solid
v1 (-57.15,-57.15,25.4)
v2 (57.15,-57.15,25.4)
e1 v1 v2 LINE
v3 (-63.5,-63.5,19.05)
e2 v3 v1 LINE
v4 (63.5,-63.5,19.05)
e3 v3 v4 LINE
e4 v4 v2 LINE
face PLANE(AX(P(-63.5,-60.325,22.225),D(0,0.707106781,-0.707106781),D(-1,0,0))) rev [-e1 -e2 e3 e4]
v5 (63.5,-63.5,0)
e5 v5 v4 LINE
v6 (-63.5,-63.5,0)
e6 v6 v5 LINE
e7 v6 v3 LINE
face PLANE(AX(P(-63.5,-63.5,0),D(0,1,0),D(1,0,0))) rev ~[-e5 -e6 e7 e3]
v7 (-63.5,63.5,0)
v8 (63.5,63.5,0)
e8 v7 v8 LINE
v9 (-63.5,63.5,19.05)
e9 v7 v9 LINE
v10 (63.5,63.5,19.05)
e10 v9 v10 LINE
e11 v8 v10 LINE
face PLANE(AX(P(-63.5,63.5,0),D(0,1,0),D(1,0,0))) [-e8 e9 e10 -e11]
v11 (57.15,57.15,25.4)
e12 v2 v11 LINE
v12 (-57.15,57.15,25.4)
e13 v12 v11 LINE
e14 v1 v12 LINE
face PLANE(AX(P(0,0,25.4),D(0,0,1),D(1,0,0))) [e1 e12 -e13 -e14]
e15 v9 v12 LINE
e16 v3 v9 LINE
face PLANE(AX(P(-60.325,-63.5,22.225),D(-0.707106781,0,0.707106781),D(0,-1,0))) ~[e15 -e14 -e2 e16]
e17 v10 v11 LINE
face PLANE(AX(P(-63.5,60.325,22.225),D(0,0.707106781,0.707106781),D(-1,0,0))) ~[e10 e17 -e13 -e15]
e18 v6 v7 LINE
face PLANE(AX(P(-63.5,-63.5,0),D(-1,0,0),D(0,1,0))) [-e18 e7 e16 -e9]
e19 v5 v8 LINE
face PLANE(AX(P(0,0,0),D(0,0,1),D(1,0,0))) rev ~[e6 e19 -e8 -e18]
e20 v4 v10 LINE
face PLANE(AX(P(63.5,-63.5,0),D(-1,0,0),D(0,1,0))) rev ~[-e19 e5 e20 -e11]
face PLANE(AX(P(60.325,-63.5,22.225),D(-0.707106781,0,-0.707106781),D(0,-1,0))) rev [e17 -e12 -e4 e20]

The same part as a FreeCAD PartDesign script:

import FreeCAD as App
import Part
import Sketcher
Q = App.Units.Quantity


def edges_at(feature, points):
    """Names of the edges that pass closest to the given points."""
    edges = feature.Shape.Edges
    near = lambda p: min(range(len(edges)), key=lambda i: edges[i].distToShape(Part.Vertex(*p))[0])
    return sorted({f"Edge{near(p) + 1}" for p in points})


def add_polygon(sketch, points):
    """Adds a closed chain of lines whose ends are joined by coincident constraints."""
    first, n = sketch.GeometryCount, len(points)
    for a, b in zip(points, points[1:] + points[:1]):
        sketch.addGeometry(Part.LineSegment(App.Vector(*a, 0), App.Vector(*b, 0)), False)
    for i in range(n):
        sketch.addConstraint(Sketcher.Constraint("Coincident", first + i, 2, first + (i + 1) % n, 1))

doc = App.newDocument("Part")
body = doc.addObject("PartDesign::Body", "Body")

sketch1 = body.newObject("Sketcher::SketchObject", "Sketch")
sketch1.AttachmentSupport = (doc.getObject("XY_Plane"), [""])
sketch1.MapMode = "FlatFace"
add_polygon(sketch1, [(-63.5, 63.5), (-63.5, -63.5), (63.5, -63.5), (63.5, 63.5)])
sketch1.addConstraint([
    Sketcher.Constraint("Vertical", 0),
    Sketcher.Constraint("Horizontal", 1),
    Sketcher.Constraint("Vertical", 2),
    Sketcher.Constraint("Horizontal", 3),
    Sketcher.Constraint("Symmetric", 0, 2, 2, 2, -1, 1),
    Sketcher.Constraint("Equal", 3, 0),
    Sketcher.Constraint("DistanceX", 1, 1, 1, 2, Q("5 in")),
])
pad1 = body.newObject("PartDesign::Pad", "Pad")
pad1.Profile = sketch1
pad1.Length = Q("1 in")
doc.recompute()

chamfer = body.newObject("PartDesign::Chamfer", "Chamfer")
chamfer.Base = (pad1, edges_at(pad1, [
    (0, -63.5, 25.4),
    (63.5, 0, 25.4),
    (0, 63.5, 25.4),
    (-63.5, 0, 25.4),
]))
chamfer.Size = Q("0.25 in")

doc.recompute()
